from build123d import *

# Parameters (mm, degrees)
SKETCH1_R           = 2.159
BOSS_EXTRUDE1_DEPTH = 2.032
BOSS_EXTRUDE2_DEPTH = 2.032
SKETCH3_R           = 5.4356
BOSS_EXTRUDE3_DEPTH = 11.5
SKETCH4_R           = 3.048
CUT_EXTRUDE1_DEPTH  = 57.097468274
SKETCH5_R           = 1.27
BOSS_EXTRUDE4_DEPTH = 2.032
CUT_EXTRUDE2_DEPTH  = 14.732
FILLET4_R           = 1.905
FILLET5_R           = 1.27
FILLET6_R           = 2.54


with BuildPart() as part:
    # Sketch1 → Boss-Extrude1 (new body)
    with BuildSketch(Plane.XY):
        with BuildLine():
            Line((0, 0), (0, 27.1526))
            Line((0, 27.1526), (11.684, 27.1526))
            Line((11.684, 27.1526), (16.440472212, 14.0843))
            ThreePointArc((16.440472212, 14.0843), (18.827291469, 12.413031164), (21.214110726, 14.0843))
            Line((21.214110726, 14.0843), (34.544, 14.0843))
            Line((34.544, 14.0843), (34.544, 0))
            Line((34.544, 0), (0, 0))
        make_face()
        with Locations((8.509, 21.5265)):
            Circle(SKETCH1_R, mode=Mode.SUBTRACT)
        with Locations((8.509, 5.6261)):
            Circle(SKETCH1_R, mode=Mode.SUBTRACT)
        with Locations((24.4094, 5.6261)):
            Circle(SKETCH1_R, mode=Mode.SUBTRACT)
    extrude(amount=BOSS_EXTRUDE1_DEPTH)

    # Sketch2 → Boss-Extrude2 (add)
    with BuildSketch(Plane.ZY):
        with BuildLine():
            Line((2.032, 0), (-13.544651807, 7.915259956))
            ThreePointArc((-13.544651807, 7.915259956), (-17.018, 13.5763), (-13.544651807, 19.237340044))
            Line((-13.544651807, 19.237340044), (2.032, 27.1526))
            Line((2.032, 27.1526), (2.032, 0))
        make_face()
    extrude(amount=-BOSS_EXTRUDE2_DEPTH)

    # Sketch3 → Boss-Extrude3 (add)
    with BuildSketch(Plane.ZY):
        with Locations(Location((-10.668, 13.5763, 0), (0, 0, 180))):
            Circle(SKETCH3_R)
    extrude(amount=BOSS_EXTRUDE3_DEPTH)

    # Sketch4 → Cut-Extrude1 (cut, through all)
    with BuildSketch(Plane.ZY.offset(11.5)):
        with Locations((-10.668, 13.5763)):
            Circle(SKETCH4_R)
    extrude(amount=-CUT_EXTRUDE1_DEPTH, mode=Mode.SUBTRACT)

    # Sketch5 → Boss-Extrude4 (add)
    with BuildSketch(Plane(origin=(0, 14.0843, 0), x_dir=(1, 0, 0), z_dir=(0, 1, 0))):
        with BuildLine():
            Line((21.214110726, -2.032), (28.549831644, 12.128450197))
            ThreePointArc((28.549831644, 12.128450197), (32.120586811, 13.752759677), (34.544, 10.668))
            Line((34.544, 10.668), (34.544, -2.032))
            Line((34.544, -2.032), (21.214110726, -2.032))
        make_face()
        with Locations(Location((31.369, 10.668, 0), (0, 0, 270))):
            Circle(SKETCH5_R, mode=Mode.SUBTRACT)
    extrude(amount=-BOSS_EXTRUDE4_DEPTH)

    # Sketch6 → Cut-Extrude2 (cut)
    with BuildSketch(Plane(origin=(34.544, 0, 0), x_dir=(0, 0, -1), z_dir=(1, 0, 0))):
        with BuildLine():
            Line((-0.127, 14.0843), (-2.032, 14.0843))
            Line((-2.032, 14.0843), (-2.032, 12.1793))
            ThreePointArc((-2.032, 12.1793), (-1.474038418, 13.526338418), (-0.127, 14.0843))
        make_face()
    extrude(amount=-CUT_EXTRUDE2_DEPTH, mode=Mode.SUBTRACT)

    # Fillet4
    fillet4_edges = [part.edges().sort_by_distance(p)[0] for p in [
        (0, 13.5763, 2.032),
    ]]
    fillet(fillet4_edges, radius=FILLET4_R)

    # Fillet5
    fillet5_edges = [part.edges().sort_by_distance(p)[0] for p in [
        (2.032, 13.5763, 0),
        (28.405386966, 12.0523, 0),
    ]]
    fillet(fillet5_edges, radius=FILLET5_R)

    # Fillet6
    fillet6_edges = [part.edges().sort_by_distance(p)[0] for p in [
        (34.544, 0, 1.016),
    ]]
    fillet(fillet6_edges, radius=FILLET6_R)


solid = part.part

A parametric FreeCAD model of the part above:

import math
import FreeCAD as App
import Part
import Sketcher

V = App.Vector
Q = App.Units.Quantity


def edges_at(feature, points):
    """Names of the edges that pass closest to the given points."""
    edges = feature.Shape.Edges
    near = lambda p: min(range(len(edges)), key=lambda i: edges[i].distToShape(Part.Vertex(*p))[0])
    return sorted({f"Edge{near(p) + 1}" for p in points})

doc = App.newDocument("Part")
body = doc.addObject("PartDesign::Body", "Body")

sketch1 = body.newObject("Sketcher::SketchObject", "Sketch")
sketch1.AttachmentSupport = (doc.getObject("XY_Plane"), [""])
sketch1.MapMode = "FlatFace"
sketch1.addGeometry([
    Part.LineSegment(V(0, 27.2, 0), V(0, 0, 0)),
    Part.LineSegment(V(0, 0, 0), V(34.5, 0, 0)),
    Part.LineSegment(V(34.5, 0, 0), V(34.5, 14.1, 0)),
    Part.LineSegment(V(34.5, 14.1, 0), V(21.2, 14.1, 0)),
    Part.ArcOfCircle(Part.Circle(V(18.8, 15, 0), V(0, 0, 1), 2.5), math.radians(-160), math.radians(-20)),
    Part.LineSegment(V(16.4, 14.1, 0), V(11.7, 27.2, 0)),
    Part.LineSegment(V(11.7, 27.2, 0), V(0, 27.2, 0)),
    Part.Circle(V(24.4, 5.6, 0), V(0, 0, 1), 2.2),
    Part.Circle(V(8.5, 5.6, 0), V(0, 0, 1), 2.2),
    Part.Circle(V(8.5, 21.5, 0), V(0, 0, 1), 2.2),
], False)
sketch1.addConstraint([
    Sketcher.Constraint("Coincident", 0, 2, 1, 1),
    Sketcher.Constraint("Coincident", 1, 2, 2, 1),
    Sketcher.Constraint("Coincident", 2, 2, 3, 1),
    Sketcher.Constraint("Coincident", 3, 2, 4, 2),
    Sketcher.Constraint("Tangent", 4, 1, 5, 1),
    Sketcher.Constraint("Coincident", 5, 2, 6, 1),
    Sketcher.Constraint("Coincident", 6, 2, 0, 1),
    Sketcher.Constraint("Vertical", 0),
    Sketcher.Constraint("Horizontal", 1),
    Sketcher.Constraint("Vertical", 2),
    Sketcher.Constraint("Horizontal", 3),
    Sketcher.Constraint("Horizontal", 6),
    Sketcher.Constraint("Coincident", 0, 2, -1, 1),
    Sketcher.Constraint("Equal", 7, 8),
    Sketcher.Constraint("Equal", 8, 9),
    Sketcher.Constraint("Horizontal", 7, 3, 8, 3),
    Sketcher.Constraint("Horizontal", 3, 2, 4, 1),
    Sketcher.Constraint("Vertical", 8, 3, 9, 3),
    Sketcher.Constraint("Radius", 4, Q("0.1 in")),
    Sketcher.Constraint("Diameter", 7, Q("0.17 in")),
    Sketcher.Constraint("Angle", 5, Q("110 deg")),
    Sketcher.Constraint("DistanceX", 1, 1, 1, 2, Q("1.36 in")),
    Sketcher.Constraint("DistanceX", 6, 2, 6, 1, Q("0.46 in")),
    Sketcher.Constraint("DistanceY", 0, 2, 0, 1, Q("1.069 in")),
    Sketcher.Constraint("DistanceY", 2, 1, 2, 2, Q("0.5545 in")),
    Sketcher.Constraint("DistanceX", -1, 1, 7, 3, Q("0.961 in")),
    Sketcher.Constraint("DistanceX", -1, 1, 8, 3, Q("0.335 in")),
    Sketcher.Constraint("DistanceY", 8, 3, 9, 3, Q("0.626 in")),
    Sketcher.Constraint("DistanceY", 7, 3, 2, 2, Q("0.333 in")),
])
pad1 = body.newObject("PartDesign::Pad", "Pad")
pad1.Profile = sketch1
pad1.Length = Q("0.08 in")

sketch2 = body.newObject("Sketcher::SketchObject", "Sketch001")
sketch2.AttachmentSupport = (doc.getObject("YZ_Plane"), [""])
sketch2.MapMode = "FlatFace"
sketch2.addGeometry([
    Part.LineSegment(V(8, -14, 0), V(0, 2, 0)),
    Part.LineSegment(V(0, 2, 0), V(27, 2, 0)),
    Part.LineSegment(V(27, 2, 0), V(19, -14, 0)),
    Part.ArcOfCircle(Part.Circle(V(14, -11, 0), V(0, 0, 1), 6), math.radians(-153), math.radians(-27)),
], False)
sketch2.addConstraint([
    Sketcher.Constraint("Coincident", 0, 2, 1, 1),
    Sketcher.Constraint("Coincident", 1, 2, 2, 1),
    Sketcher.Constraint("Tangent", 2, 2, 3, 2),
    Sketcher.Constraint("Tangent", 3, 1, 0, 1),
    Sketcher.Constraint("Horizontal", 1),
    Sketcher.Constraint("PointOnObject", 0, 2, -2),
    Sketcher.Constraint("Horizontal", 2, 2, 3, 1),
    Sketcher.Constraint("Radius", 3, Q("0.25 in")),
    Sketcher.Constraint("DistanceY", 3, 3, 0, 2, Q("0.5 in")),
    Sketcher.Constraint("DistanceX", 1, 1, 1, 2, Q("1.069 in")),
    Sketcher.Constraint("DistanceY", 3, 3, -1, 1, Q("0.42 in")),
])
pad2 = body.newObject("PartDesign::Pad", "Pad001")
pad2.Profile = sketch2
pad2.Length = Q("0.08 in")

sketch3 = body.newObject("Sketcher::SketchObject", "Sketch002")
sketch3.AttachmentSupport = (doc.getObject("YZ_Plane"), [""])
sketch3.MapMode = "FlatFace"
sketch3.addGeometry(Part.Circle(V(14, -11, 0), V(0, 0, 1), 5), False)
sketch3.addConstraint([
    Sketcher.Constraint("Diameter", 0, Q("0.428 in")),
    Sketcher.Constraint("DistanceY", 0, 3, -1, 1, Q("0.42 in")),
    Sketcher.Constraint("DistanceX", -1, 1, 0, 3, Q("0.5345 in")),
])
pad3 = body.newObject("PartDesign::Pad", "Pad002")
pad3.Profile = sketch3
pad3.Length = 11.5
pad3.Reversed = True

sketch4 = body.newObject("Sketcher::SketchObject", "Sketch003")
sketch4.AttachmentSupport = (doc.getObject("YZ_Plane"), [""])
sketch4.MapMode = "FlatFace"
sketch4.AttachmentOffset = App.Placement(V(0, 0, -11.5), App.Rotation())
sketch4.addGeometry(Part.Circle(V(13.6, -10.7, 0), V(0, 0, 1), 3), False)
sketch4.addConstraint([
    Sketcher.Constraint("Diameter", 0, Q("0.24 in")),
    Sketcher.Constraint("DistanceY", 0, 3, -1, 1, Q("0.42 in")),
    Sketcher.Constraint("DistanceX", -1, 1, 0, 3, Q("0.5345 in")),
])
pocket1 = body.newObject("PartDesign::Pocket", "Pocket")
pocket1.Profile = sketch4
pocket1.Type = "ThroughAll"
pocket1.Reversed = True

sketch5 = body.newObject("Sketcher::SketchObject", "Sketch004")
sketch5.AttachmentSupport = (doc.getObject("XZ_Plane"), [""])
sketch5.MapMode = "FlatFace"
sketch5.AttachmentOffset = App.Placement(V(0, 0, -0.5545 * 25.4), App.Rotation())
sketch5.addGeometry([
    Part.LineSegment(V(28.5, -12.1, 0), V(21.2, 2, 0)),
    Part.LineSegment(V(21.2, 2, 0), V(34.5, 2, 0)),
    Part.LineSegment(V(34.5, 2, 0), V(34.5, -10.7, 0)),
    Part.ArcOfCircle(Part.Circle(V(31.4, -10.7, 0), V(0, 0, 1), 3.2), math.radians(-153), math.radians(0)),
    Part.Circle(V(31.4, -10.7, 0), V(0, 0, 1), 1.3),
], False)
sketch5.addConstraint([
    Sketcher.Constraint("Coincident", 0, 2, 1, 1),
    Sketcher.Constraint("Coincident", 1, 2, 2, 1),
    Sketcher.Constraint("Tangent", 2, 2, 3, 2),
    Sketcher.Constraint("Tangent", 3, 1, 0, 1),
    Sketcher.Constraint("Horizontal", 1),
    Sketcher.Constraint("Vertical", 2),
    Sketcher.Constraint("Coincident", 4, 3, 3, 3),
    Sketcher.Constraint("Diameter", 4, Q("0.1 in")),
    Sketcher.Constraint("DistanceY", 2, 2, 2, 1, Q("0.5 in")),
    Sketcher.Constraint("Radius", 3, Q("0.125 in")),
    Sketcher.Constraint("DistanceY", 3, 3, -1, 1, Q("0.42 in")),
    Sketcher.Constraint("DistanceX", -1, 1, 1, 2, Q("1.36 in")),
    Sketcher.Constraint("DistanceX", 1, 1, 1, 2, Q("13.329889 mm")),
])
pad4 = body.newObject("PartDesign::Pad", "Pad003")
pad4.Profile = sketch5
pad4.Length = Q("0.08 in")

sketch6 = body.newObject("Sketcher::SketchObject", "Sketch005")
sketch6.AttachmentSupport = (doc.getObject("YZ_Plane"), [""])
sketch6.MapMode = "FlatFace"
sketch6.AttachmentOffset = App.Placement(V(0, 0, 1.36 * 25.4), App.Rotation())
sketch6.addGeometry([
    Part.LineSegment(V(14.1, 0.1, 0), V(14.1, 2, 0)),
    Part.LineSegment(V(14.1, 2, 0), V(12.2, 2, 0)),
    Part.ArcOfCircle(Part.Circle(V(12.2, 0.1, 0), V(0, 0, 1), 1.9), math.radians(0), math.radians(90)),
], False)
sketch6.addConstraint([
    Sketcher.Constraint("Coincident", 0, 2, 1, 1),
    Sketcher.Constraint("Tangent", 1, 2, 2, 2),
    Sketcher.Constraint("Tangent", 2, 1, 0, 1),
    Sketcher.Constraint("Vertical", 0),
    Sketcher.Constraint("Horizontal", 1),
    Sketcher.Constraint("Radius", 2, Q("0.075 in")),
    Sketcher.Constraint("DistanceY", -1, 1, 0, 2, Q("0.08 in")),
    Sketcher.Constraint("DistanceX", -1, 1, 2, 3, Q("0.4795 in")),
])
pocket2 = body.newObject("PartDesign::Pocket", "Pocket001")
pocket2.Profile = sketch6
pocket2.Length = Q("0.58 in")
doc.recompute()

fillet = body.newObject("PartDesign::Fillet", "Fillet")
fillet.Base = (pocket2, edges_at(pocket2, [(0, 13.576, 2.032)]))
fillet.Radius = Q("0.075 in")
doc.recompute()

fillet2 = body.newObject("PartDesign::Fillet", "Fillet001")
fillet2.Base = (fillet, edges_at(fillet, [(2.032, 13.576, 0), (28.405, 12.052, 0)]))
fillet2.Radius = Q("0.05 in")
doc.recompute()

fillet3 = body.newObject("PartDesign::Fillet", "Fillet002")
fillet3.Base = (fillet2, edges_at(fillet2, [(34.544, 0, 1.016)]))
fillet3.Radius = Q("0.1 in")

doc.recompute()
